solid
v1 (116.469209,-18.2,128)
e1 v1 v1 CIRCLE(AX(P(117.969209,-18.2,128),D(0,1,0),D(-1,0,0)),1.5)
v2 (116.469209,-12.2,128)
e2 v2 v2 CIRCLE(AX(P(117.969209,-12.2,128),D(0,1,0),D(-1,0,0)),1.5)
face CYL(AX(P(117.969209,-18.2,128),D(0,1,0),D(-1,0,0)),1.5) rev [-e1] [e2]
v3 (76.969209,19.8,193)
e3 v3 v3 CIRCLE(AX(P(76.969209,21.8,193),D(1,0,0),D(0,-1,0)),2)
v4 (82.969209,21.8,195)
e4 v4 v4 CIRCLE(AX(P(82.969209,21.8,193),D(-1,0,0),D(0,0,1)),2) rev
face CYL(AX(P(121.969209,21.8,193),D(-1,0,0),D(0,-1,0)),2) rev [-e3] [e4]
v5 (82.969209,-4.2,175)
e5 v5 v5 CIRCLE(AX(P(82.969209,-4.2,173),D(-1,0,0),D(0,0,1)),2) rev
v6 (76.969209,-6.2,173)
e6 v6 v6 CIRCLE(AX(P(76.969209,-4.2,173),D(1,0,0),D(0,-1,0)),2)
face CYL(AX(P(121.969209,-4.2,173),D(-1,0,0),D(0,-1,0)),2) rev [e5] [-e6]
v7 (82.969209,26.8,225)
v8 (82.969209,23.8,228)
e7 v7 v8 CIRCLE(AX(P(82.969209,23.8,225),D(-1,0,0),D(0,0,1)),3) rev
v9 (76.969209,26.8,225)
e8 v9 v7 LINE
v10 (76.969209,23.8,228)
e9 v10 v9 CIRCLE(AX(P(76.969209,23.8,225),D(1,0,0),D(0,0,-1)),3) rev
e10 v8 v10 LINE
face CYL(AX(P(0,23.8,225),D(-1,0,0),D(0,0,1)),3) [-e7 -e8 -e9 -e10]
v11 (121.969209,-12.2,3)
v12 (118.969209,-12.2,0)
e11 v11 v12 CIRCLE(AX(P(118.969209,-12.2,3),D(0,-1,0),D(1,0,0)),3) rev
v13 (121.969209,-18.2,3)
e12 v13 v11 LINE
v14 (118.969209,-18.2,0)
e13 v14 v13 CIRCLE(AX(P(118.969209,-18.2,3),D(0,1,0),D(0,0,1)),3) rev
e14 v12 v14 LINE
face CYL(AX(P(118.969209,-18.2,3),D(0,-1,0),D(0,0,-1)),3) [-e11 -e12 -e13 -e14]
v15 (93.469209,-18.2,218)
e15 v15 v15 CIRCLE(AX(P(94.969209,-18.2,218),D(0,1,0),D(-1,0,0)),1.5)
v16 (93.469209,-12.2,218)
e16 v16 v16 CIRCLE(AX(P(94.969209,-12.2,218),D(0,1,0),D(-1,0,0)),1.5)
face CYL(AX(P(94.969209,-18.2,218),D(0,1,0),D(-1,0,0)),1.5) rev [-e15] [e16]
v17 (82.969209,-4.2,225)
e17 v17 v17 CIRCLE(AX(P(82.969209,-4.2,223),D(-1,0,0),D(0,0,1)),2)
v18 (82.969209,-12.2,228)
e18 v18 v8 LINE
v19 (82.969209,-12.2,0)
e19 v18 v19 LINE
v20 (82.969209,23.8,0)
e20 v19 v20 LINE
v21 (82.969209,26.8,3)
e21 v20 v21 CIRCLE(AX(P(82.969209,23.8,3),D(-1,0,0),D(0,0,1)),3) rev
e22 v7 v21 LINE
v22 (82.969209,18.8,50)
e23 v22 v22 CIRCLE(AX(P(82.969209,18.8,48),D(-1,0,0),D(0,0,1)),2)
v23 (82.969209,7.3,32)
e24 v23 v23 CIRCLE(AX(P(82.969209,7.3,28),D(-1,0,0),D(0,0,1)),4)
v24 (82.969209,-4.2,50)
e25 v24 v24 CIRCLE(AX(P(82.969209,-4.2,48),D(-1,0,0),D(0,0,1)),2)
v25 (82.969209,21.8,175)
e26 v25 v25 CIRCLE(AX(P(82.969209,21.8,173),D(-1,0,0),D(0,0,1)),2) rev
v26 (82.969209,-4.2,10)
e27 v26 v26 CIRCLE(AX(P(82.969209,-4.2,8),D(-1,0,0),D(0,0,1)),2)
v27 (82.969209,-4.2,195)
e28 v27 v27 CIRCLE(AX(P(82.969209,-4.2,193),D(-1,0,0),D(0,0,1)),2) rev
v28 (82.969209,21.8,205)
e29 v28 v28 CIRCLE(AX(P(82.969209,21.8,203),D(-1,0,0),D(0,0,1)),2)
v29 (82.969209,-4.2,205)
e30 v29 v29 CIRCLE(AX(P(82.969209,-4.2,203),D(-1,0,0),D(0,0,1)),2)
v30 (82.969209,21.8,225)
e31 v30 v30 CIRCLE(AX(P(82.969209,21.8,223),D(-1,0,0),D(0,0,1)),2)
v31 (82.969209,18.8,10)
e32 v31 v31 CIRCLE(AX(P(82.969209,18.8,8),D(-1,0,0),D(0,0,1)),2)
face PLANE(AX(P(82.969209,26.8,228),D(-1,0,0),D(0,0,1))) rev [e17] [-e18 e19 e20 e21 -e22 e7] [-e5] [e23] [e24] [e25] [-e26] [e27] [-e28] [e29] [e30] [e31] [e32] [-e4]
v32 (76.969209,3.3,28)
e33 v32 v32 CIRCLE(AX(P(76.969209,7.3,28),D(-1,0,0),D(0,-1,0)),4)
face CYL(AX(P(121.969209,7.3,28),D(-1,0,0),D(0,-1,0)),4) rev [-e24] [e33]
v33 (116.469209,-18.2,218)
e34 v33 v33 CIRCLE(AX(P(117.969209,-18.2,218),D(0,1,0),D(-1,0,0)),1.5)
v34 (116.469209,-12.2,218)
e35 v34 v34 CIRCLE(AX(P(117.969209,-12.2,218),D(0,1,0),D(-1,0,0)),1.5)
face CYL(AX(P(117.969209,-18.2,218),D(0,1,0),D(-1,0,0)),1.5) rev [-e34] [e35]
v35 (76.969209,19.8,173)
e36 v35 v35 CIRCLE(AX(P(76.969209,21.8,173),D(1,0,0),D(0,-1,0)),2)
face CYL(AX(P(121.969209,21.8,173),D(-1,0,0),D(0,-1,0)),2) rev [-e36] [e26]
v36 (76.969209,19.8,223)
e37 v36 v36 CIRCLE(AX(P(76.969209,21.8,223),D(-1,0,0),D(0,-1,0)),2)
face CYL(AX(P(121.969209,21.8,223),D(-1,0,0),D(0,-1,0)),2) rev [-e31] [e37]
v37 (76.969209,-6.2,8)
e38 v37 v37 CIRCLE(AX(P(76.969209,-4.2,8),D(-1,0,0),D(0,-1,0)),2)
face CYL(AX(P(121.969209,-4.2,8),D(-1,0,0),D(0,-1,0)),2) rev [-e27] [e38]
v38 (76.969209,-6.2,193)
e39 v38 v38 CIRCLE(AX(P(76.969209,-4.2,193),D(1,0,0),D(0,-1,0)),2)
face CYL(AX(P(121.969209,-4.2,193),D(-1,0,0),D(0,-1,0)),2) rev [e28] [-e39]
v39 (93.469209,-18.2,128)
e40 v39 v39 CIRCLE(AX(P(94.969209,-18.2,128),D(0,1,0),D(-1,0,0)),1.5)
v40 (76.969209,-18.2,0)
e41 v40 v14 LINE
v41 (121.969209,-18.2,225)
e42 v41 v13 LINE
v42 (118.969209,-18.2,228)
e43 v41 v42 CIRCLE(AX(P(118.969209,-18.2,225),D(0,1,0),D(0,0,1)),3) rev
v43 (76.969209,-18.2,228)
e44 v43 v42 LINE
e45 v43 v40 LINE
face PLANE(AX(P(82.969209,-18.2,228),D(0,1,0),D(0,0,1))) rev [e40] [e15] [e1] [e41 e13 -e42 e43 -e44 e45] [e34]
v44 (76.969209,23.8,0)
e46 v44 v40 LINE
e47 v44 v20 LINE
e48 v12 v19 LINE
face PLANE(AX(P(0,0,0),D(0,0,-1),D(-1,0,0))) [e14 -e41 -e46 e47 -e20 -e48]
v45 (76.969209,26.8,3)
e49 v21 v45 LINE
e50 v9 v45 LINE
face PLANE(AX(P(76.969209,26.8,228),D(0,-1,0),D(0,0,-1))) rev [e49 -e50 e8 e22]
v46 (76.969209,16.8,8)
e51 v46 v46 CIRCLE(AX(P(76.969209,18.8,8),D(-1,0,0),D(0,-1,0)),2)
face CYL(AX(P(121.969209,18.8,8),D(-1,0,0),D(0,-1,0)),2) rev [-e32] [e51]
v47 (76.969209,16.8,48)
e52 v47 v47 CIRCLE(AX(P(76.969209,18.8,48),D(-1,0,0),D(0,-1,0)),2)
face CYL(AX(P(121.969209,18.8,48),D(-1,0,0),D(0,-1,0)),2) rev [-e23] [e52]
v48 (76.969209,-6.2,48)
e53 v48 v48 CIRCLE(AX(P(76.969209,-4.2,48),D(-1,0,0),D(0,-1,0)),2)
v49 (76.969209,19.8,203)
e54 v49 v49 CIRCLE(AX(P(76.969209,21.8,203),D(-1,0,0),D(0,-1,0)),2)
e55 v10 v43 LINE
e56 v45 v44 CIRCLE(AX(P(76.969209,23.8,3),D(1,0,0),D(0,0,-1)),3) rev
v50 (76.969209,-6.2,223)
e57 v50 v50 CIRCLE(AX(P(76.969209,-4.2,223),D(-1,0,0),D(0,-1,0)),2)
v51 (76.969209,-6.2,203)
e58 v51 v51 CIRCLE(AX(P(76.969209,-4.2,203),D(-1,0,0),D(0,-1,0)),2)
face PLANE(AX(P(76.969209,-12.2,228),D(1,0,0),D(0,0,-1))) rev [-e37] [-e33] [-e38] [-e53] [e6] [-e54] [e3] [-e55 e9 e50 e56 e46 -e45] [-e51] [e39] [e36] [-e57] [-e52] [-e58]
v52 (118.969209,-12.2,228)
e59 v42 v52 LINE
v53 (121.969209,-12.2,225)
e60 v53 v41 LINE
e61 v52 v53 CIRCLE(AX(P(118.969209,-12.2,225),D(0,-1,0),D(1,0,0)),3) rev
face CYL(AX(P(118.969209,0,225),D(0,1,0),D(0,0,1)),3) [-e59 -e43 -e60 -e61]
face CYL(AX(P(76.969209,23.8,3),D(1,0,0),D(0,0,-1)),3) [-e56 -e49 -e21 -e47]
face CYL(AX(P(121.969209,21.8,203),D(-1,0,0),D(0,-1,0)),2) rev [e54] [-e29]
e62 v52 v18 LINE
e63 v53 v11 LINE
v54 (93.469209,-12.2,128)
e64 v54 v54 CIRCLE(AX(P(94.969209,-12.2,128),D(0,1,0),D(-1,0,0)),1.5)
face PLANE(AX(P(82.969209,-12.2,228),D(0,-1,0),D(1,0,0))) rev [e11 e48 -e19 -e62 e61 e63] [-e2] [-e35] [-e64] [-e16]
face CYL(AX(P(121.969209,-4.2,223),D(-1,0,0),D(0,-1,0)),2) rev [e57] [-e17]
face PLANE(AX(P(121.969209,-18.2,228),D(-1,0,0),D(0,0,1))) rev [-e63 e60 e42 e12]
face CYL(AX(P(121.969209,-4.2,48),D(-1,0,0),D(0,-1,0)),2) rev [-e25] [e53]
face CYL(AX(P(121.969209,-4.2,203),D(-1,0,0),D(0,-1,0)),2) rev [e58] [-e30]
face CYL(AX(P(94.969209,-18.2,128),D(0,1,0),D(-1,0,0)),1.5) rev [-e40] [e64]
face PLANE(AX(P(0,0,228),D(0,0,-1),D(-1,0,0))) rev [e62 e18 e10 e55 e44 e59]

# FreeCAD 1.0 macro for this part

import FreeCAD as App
import Part
import Sketcher
from FreeCAD import Vector
Q = App.Units.Quantity


def edges_at(feature, points):
    """Names of the edges that pass closest to the given points."""
    edges = feature.Shape.Edges
    near = lambda p: min(range(len(edges)), key=lambda i: edges[i].distToShape(Part.Vertex(*p))[0])
    return sorted({f"Edge{near(p) + 1}" for p in points})

doc = App.newDocument("Part")
body = doc.addObject("PartDesign::Body", "Body")

sketch1 = body.newObject("Sketcher::SketchObject", "Sketch")
sketch1.AttachmentSupport = (doc.getObject("XY_Plane"), [""])
sketch1.MapMode = "FlatFace"
sketch1.addGeometry(Part.LineSegment(Vector(83, -12, 0), Vector(83, 27, 0)), False)
sketch1.addGeometry(Part.LineSegment(Vector(83, 27, 0), Vector(77, 27, 0)), False)
sketch1.addGeometry(Part.LineSegment(Vector(77, 27, 0), Vector(77, -18, 0)), False)
sketch1.addGeometry(Part.LineSegment(Vector(77, -18, 0), Vector(122, -18, 0)), False)
sketch1.addGeometry(Part.LineSegment(Vector(122, -18, 0), Vector(122, -12, 0)), False)
sketch1.addGeometry(Part.LineSegment(Vector(122, -12, 0), Vector(83, -12, 0)), False)
sketch1.addConstraint(Sketcher.Constraint("Coincident", 0, 2, 1, 1))
sketch1.addConstraint(Sketcher.Constraint("Coincident", 1, 2, 2, 1))
sketch1.addConstraint(Sketcher.Constraint("Coincident", 2, 2, 3, 1))
sketch1.addConstraint(Sketcher.Constraint("Coincident", 3, 2, 4, 1))
sketch1.addConstraint(Sketcher.Constraint("Coincident", 4, 2, 5, 1))
sketch1.addConstraint(Sketcher.Constraint("Coincident", 5, 2, 0, 1))
sketch1.addConstraint(Sketcher.Constraint("Vertical", 0))
sketch1.addConstraint(Sketcher.Constraint("Horizontal", 1))
sketch1.addConstraint(Sketcher.Constraint("Vertical", 2))
sketch1.addConstraint(Sketcher.Constraint("Horizontal", 3))
sketch1.addConstraint(Sketcher.Constraint("Vertical", 4))
sketch1.addConstraint(Sketcher.Constraint("Horizontal", 5))
sketch1.addConstraint(Sketcher.Constraint("Equal", 5, 0))
sketch1.addConstraint(Sketcher.Constraint("Equal", 3, 2))
sketch1.addConstraint(Sketcher.Constraint("DistanceX", 1, 2, 1, 1, Q("6 mm")))
sketch1.addConstraint(Sketcher.Constraint("DistanceX", 3, 1, 3, 2, Q("45 mm")))
sketch1.addConstraint(Sketcher.Constraint("DistanceY", -1, 1, 0, 2, Q("26.8 mm")))
sketch1.addConstraint(Sketcher.Constraint("DistanceX", -1, 1, 0, 2, Q("82.969209 mm")))
pad1 = body.newObject("PartDesign::Pad", "Pad")
pad1.Profile = sketch1
pad1.Length = 228
doc.recompute()

fillet = body.newObject("PartDesign::Fillet", "Fillet")
fillet.Base = (pad1, edges_at(pad1, [
    (79.969, 26.8, 0),
    (121.969, -15.2, 228),
    (79.969, 26.8, 228),
    (121.969, -15.2, 0),
]))
fillet.Radius = 3

sketch2 = body.newObject("Sketcher::SketchObject", "Sketch001")
sketch2.AttachmentSupport = (doc.getObject("YZ_Plane"), [""])
sketch2.MapMode = "FlatFace"
sketch2.AttachmentOffset = App.Placement(Vector(0, 0, 76.969209), App.Rotation())
sketch2.addGeometry(Part.Circle(Vector(21.8, 223, 0), Vector(0, 0, 1), 2), False)
sketch2.addGeometry(Part.Circle(Vector(-4.2, 223, 0), Vector(0, 0, 1), 2), False)
sketch2.addGeometry(Part.Circle(Vector(21.8, 203, 0), Vector(0, 0, 1), 2), False)
sketch2.addGeometry(Part.Circle(Vector(-4.2, 203, 0), Vector(0, 0, 1), 2), False)
sketch2.addConstraint(Sketcher.Constraint("Equal", 0, 1))
sketch2.addConstraint(Sketcher.Constraint("Equal", 1, 2))
sketch2.addConstraint(Sketcher.Constraint("Equal", 2, 3))
sketch2.addConstraint(Sketcher.Constraint("Horizontal", 0, 3, 1, 3))
sketch2.addConstraint(Sketcher.Constraint("Horizontal", 2, 3, 3, 3))
sketch2.addConstraint(Sketcher.Constraint("Vertical", 0, 3, 2, 3))
sketch2.addConstraint(Sketcher.Constraint("Vertical", 1, 3, 3, 3))
sketch2.addConstraint(Sketcher.Constraint("Diameter", 0, Q("4 mm")))
sketch2.addConstraint(Sketcher.Constraint("DistanceY", -1, 1, 0, 3, Q("223 mm")))
sketch2.addConstraint(Sketcher.Constraint("DistanceY", -1, 1, 2, 3, Q("203 mm")))
sketch2.addConstraint(Sketcher.Constraint("DistanceX", 1, 3, 0, 3, Q("26 mm")))
sketch2.addConstraint(Sketcher.Constraint("DistanceX", -1, 1, 0, 3, Q("21.8 mm")))
pocket1 = body.newObject("PartDesign::Pocket", "Pocket")
pocket1.Profile = sketch2
pocket1.Type = "ThroughAll"
pocket1.Reversed = True
doc.recompute()

datumplane = body.newObject("PartDesign::Plane", "DatumPlane")
datumplane.AttachmentSupport = (doc.getObject("XY_Plane"), [""])
datumplane.MapMode = "FlatFace"
datumplane.AttachmentOffset = App.Placement(Vector(0, 0, 198), App.Rotation())
mirrored = body.newObject("PartDesign::Mirrored", "Mirrored")
mirrored.Originals = [pocket1]
mirrored.MirrorPlane = (datumplane, [""])
body.Tip = mirrored

sketch3 = body.newObject("Sketcher::SketchObject", "Sketch002")
sketch3.AttachmentSupport = (doc.getObject("YZ_Plane"), [""])
sketch3.MapMode = "FlatFace"
sketch3.AttachmentOffset = App.Placement(Vector(0, 0, 76.969209), App.Rotation())
sketch3.addGeometry(Part.Circle(Vector(18.8, 8, 0), Vector(0, 0, 1), 2), False)
sketch3.addGeometry(Part.Circle(Vector(18.8, 48, 0), Vector(0, 0, 1), 2), False)
sketch3.addGeometry(Part.Circle(Vector(-4.2, 8, 0), Vector(0, 0, 1), 2), False)
sketch3.addGeometry(Part.Circle(Vector(-4.2, 48, 0), Vector(0, 0, 1), 2), False)
sketch3.addConstraint(Sketcher.Constraint("Equal", 0, 1))
sketch3.addConstraint(Sketcher.Constraint("Equal", 1, 2))
sketch3.addConstraint(Sketcher.Constraint("Equal", 2, 3))
sketch3.addConstraint(Sketcher.Constraint("Horizontal", 0, 3, 2, 3))
sketch3.addConstraint(Sketcher.Constraint("Horizontal", 1, 3, 3, 3))
sketch3.addConstraint(Sketcher.Constraint("Vertical", 0, 3, 1, 3))
sketch3.addConstraint(Sketcher.Constraint("Vertical", 2, 3, 3, 3))
sketch3.addConstraint(Sketcher.Constraint("Diameter", 0, Q("4 mm")))
sketch3.addConstraint(Sketcher.Constraint("DistanceY", -1, 1, 0, 3, Q("8 mm")))
sketch3.addConstraint(Sketcher.Constraint("DistanceY", -1, 1, 1, 3, Q("48 mm")))
sketch3.addConstraint(Sketcher.Constraint("DistanceX", 2, 3, 0, 3, Q("23 mm")))
sketch3.addConstraint(Sketcher.Constraint("DistanceX", -1, 1, 0, 3, Q("18.8 mm")))
pocket2 = body.newObject("PartDesign::Pocket", "Pocket001")
pocket2.Profile = sketch3
pocket2.Type = "ThroughAll"
pocket2.Reversed = True

sketch4 = body.newObject("Sketcher::SketchObject", "Sketch003")
sketch4.AttachmentSupport = (doc.getObject("YZ_Plane"), [""])
sketch4.MapMode = "FlatFace"
sketch4.AttachmentOffset = App.Placement(Vector(0, 0, 76.969209), App.Rotation())
sketch4.addGeometry(Part.Circle(Vector(7.3, 28, 0), Vector(0, 0, 1), 4), False)
sketch4.addConstraint(Sketcher.Constraint("Diameter", 0, Q("8 mm")))
sketch4.addConstraint(Sketcher.Constraint("DistanceY", -1, 1, 0, 3, Q("28 mm")))
sketch4.addConstraint(Sketcher.Constraint("DistanceX", -1, 1, 0, 3, Q("7.3 mm")))
pocket3 = body.newObject("PartDesign::Pocket", "Pocket002")
pocket3.Profile = sketch4
pocket3.Type = "ThroughAll"
pocket3.Reversed = True

sketch5 = body.newObject("Sketcher::SketchObject", "Sketch004")
sketch5.AttachmentSupport = (doc.getObject("XZ_Plane"), [""])
sketch5.MapMode = "FlatFace"
sketch5.AttachmentOffset = App.Placement(Vector(0, 0, 12.2), App.Rotation())
sketch5.addGeometry(Part.Circle(Vector(95, 218, 0), Vector(0, 0, 1), 1.5), False)
sketch5.addGeometry(Part.Circle(Vector(118, 218, 0), Vector(0, 0, 1), 1.5), False)
sketch5.addGeometry(Part.Circle(Vector(118, 128, 0), Vector(0, 0, 1), 1.5), False)
sketch5.addGeometry(Part.Circle(Vector(95, 128, 0), Vector(0, 0, 1), 1.5), False)
sketch5.addConstraint(Sketcher.Constraint("Equal", 0, 1))
sketch5.addConstraint(Sketcher.Constraint("Equal", 1, 2))
sketch5.addConstraint(Sketcher.Constraint("Equal", 2, 3))
sketch5.addConstraint(Sketcher.Constraint("Horizontal", 0, 3, 1, 3))
sketch5.addConstraint(Sketcher.Constraint("Horizontal", 2, 3, 3, 3))
sketch5.addConstraint(Sketcher.Constraint("Vertical", 1, 3, 2, 3))
sketch5.addConstraint(Sketcher.Constraint("Vertical", 0, 3, 3, 3))
sketch5.addConstraint(Sketcher.Constraint("Diameter", 0, Q("3 mm")))
sketch5.addConstraint(Sketcher.Constraint("DistanceY", -1, 1, 0, 3, Q("218 mm")))
sketch5.addConstraint(Sketcher.Constraint("DistanceY", -1, 1, 2, 3, Q("128 mm")))
sketch5.addConstraint(Sketcher.Constraint("DistanceX", 0, 3, 1, 3, Q("23 mm")))
sketch5.addConstraint(Sketcher.Constraint("DistanceX", -1, 1, 0, 3, Q("94.969209 mm")))
pocket4 = body.newObject("PartDesign::Pocket", "Pocket003")
pocket4.Profile = sketch5
pocket4.Type = "ThroughAll"
pocket4.Reversed = True

doc.recompute()
